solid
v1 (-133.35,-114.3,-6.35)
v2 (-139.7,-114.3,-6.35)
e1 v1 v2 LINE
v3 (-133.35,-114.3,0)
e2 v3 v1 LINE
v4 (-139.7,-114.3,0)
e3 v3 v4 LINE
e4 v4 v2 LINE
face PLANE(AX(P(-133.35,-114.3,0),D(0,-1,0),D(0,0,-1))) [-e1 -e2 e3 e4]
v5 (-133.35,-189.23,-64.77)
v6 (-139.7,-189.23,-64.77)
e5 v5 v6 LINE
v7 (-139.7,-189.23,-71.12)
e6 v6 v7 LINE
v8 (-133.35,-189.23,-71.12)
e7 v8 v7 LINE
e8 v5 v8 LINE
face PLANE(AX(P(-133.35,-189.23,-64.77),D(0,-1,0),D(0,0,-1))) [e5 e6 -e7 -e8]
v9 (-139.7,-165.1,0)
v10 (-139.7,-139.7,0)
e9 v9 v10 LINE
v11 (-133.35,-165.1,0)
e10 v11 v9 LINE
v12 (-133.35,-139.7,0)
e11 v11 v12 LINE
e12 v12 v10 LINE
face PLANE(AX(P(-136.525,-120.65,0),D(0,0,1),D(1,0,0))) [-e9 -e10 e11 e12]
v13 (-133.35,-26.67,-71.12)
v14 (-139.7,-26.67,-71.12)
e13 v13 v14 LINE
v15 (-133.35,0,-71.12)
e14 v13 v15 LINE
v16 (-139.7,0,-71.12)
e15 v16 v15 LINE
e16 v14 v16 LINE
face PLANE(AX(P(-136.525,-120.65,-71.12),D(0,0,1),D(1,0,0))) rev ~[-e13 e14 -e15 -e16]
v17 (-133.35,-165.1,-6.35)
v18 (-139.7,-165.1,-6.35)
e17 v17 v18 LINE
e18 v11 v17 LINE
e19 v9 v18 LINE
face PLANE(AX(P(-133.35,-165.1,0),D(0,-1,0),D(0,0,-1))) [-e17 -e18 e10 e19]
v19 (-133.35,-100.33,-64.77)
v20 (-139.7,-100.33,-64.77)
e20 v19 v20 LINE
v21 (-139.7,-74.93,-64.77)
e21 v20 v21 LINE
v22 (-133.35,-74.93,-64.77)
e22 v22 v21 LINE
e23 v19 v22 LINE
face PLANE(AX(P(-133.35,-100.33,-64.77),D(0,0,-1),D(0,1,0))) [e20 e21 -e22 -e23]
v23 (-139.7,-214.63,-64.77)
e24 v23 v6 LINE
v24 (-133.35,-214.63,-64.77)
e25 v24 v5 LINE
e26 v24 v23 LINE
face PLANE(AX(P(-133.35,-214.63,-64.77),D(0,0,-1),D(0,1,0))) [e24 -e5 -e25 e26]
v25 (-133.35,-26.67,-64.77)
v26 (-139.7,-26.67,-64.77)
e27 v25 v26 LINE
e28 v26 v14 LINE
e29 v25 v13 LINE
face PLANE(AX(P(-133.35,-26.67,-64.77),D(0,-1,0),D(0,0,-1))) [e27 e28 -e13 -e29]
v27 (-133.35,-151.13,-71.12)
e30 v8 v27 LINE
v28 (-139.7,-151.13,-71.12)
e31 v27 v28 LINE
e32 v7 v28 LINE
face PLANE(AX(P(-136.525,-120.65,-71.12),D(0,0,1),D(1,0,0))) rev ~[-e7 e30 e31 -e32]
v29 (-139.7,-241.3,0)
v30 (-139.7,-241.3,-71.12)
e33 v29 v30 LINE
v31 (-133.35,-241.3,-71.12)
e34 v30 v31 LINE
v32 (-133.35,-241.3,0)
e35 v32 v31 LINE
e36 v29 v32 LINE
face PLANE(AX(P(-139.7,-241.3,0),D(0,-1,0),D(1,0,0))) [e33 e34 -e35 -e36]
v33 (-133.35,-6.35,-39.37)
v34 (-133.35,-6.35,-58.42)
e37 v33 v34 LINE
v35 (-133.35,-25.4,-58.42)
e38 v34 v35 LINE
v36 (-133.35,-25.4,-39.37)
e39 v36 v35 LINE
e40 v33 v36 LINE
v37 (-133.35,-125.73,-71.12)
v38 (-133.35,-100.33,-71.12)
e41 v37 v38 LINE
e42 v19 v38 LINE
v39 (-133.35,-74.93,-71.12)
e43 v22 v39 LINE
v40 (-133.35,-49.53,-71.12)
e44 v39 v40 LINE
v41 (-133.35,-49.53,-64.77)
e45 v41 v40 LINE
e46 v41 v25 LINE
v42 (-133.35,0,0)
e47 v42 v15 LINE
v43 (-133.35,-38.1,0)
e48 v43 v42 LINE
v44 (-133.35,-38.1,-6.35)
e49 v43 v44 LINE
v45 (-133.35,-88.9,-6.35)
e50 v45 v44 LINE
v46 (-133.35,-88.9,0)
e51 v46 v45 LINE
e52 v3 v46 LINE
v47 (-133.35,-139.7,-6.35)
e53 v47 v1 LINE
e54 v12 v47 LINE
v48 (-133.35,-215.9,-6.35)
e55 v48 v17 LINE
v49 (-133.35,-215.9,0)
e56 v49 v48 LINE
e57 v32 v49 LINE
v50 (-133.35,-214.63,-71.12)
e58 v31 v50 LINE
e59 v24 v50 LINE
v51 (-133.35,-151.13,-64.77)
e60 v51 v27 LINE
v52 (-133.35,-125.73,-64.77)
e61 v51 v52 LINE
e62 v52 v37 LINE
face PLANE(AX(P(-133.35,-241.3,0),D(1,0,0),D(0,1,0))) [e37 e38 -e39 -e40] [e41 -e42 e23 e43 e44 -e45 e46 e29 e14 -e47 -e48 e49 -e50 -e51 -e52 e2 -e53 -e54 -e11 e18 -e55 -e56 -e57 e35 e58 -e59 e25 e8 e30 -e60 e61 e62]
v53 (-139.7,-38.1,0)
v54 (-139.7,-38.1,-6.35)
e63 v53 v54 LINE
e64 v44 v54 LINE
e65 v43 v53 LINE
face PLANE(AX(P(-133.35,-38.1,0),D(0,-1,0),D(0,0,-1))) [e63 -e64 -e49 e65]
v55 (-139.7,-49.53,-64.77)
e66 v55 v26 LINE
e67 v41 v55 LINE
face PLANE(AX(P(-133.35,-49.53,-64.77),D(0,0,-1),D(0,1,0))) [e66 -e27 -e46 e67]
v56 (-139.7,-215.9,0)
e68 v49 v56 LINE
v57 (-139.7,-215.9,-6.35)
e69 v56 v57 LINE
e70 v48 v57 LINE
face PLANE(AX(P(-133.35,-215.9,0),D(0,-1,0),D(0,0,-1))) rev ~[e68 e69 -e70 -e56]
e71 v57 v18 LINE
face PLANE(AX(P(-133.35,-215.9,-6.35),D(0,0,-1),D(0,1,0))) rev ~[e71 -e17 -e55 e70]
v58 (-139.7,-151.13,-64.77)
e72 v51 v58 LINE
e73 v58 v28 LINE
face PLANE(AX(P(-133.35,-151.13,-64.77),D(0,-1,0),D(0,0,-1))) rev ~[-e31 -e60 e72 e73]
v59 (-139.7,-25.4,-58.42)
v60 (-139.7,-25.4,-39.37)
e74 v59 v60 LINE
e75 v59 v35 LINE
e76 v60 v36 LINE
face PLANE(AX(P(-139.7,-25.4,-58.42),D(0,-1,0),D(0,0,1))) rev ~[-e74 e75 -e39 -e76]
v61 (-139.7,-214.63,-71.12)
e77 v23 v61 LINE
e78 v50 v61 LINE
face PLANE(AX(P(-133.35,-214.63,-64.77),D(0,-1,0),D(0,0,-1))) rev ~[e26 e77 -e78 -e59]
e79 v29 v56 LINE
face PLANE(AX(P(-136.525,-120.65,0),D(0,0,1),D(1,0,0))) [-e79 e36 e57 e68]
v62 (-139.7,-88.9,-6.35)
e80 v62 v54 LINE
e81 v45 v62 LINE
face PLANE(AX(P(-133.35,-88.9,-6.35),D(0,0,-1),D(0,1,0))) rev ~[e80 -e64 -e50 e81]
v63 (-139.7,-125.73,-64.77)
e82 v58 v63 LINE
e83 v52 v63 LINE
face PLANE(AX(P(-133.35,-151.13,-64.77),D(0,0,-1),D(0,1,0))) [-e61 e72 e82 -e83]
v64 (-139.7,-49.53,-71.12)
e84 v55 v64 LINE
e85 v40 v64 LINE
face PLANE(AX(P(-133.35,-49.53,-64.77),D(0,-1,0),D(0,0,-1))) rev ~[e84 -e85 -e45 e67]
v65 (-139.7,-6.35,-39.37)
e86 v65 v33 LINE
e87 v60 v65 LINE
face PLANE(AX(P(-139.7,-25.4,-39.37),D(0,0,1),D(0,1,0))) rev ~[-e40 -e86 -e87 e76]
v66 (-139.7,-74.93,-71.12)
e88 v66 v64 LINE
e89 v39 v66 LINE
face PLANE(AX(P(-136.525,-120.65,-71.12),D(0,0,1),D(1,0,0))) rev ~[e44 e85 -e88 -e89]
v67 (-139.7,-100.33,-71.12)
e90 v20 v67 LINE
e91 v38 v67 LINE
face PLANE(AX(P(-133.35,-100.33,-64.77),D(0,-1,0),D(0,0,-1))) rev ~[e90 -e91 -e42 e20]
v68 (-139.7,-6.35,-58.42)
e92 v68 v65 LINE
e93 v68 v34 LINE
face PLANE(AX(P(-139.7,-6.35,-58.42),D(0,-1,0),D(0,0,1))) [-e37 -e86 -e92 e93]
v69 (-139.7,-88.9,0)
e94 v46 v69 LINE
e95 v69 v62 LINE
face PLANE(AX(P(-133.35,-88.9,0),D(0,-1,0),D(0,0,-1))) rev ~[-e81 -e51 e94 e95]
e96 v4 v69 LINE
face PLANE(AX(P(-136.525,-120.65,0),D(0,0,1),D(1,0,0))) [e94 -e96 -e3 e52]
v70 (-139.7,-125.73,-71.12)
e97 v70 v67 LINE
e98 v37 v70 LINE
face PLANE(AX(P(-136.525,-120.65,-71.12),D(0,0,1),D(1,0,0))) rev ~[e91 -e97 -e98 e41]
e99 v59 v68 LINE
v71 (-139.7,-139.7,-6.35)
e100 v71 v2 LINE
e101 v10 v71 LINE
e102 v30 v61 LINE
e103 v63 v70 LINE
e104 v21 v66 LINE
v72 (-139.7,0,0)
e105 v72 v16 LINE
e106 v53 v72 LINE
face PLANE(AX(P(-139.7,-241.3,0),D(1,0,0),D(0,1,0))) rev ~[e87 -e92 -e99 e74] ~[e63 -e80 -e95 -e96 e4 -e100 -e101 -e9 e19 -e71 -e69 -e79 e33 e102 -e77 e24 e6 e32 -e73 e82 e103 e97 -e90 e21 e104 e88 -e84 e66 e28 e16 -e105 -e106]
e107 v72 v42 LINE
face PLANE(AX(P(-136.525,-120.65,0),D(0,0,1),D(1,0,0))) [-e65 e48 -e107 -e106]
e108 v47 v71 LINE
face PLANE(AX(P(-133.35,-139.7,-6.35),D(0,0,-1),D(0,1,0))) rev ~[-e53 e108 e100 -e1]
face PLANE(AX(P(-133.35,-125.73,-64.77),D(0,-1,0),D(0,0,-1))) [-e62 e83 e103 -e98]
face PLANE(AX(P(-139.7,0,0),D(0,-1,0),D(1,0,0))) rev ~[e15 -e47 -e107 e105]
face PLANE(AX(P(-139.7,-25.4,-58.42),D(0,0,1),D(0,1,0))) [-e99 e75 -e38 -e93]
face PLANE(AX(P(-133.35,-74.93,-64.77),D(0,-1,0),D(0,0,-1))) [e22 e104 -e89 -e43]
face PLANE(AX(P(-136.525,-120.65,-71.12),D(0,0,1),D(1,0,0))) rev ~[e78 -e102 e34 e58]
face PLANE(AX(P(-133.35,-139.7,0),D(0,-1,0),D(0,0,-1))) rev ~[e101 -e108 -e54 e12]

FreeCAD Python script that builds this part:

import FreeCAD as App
import Part
import Sketcher

V = App.Vector
Q = App.Units.Quantity


def add_polygon(sketch, points):
    """Adds a closed chain of lines whose ends are joined by coincident constraints."""
    first, n = sketch.GeometryCount, len(points)
    for a, b in zip(points, points[1:] + points[:1]):
        sketch.addGeometry(Part.LineSegment(App.Vector(*a, 0), App.Vector(*b, 0)), False)
    for i in range(n):
        sketch.addConstraint(Sketcher.Constraint("Coincident", first + i, 2, first + (i + 1) % n, 1))

doc = App.newDocument("Part")
body = doc.addObject("PartDesign::Body", "Body")

# Sketch on XY plane
sketch1 = doc.addObject("Sketcher::SketchObject", "Sketch")
body.addObject(sketch1)
sketch1.AttachmentSupport = (doc.XY_Plane, [""])
sketch1.MapMode = "FlatFace"
add_polygon(sketch1, [(-140, 0), (-140, -241), (-133, -241), (-133, 0)])  # lines 0-3
sketch1.addConstraint(Sketcher.Constraint("Vertical", 0))
sketch1.addConstraint(Sketcher.Constraint("Horizontal", 1))
sketch1.addConstraint(Sketcher.Constraint("Vertical", 2))
sketch1.addConstraint(Sketcher.Constraint("Horizontal", 3))
sketch1.addConstraint(Sketcher.Constraint("PointOnObject", 2, 2, -1))
sketch1.addConstraint(Sketcher.Constraint("DistanceY", 0, 2, 0, 1, Q("9.5 in")))
sketch1.addConstraint(Sketcher.Constraint("DistanceX", 1, 1, 1, 2, Q("0.25 in")))
sketch1.addConstraint(Sketcher.Constraint("DistanceX", 0, 2, -1, 1, Q("5.5 in")))
pad1 = doc.addObject("PartDesign::Pad", "Pad")
body.addObject(pad1)
pad1.Profile = sketch1
pad1.Length = Q("2.8 in")
pad1.Reversed = True

# Sketch on YZ plane
sketch2 = doc.addObject("Sketcher::SketchObject", "Sketch001")
body.addObject(sketch2)
sketch2.AttachmentSupport = (doc.YZ_Plane, [""])
sketch2.MapMode = "FlatFace"
sketch2.AttachmentOffset = App.Placement(V(0, 0, -5.25 * 25.4), App.Rotation())
add_polygon(sketch2, [(-27, -65), (-50, -65), (-50, -71), (-27, -71)])  # lines 0-3
add_polygon(sketch2, [(-75, -65), (-100, -65), (-100, -71), (-75, -71)])  # lines 4-7
add_polygon(sketch2, [(-126, -65), (-151, -65), (-151, -71), (-126, -71)])  # lines 8-11
add_polygon(sketch2, [(-189, -65), (-215, -65), (-215, -71), (-189, -71)])  # lines 12-15
sketch2.addConstraint(Sketcher.Constraint("Horizontal", 0))
sketch2.addConstraint(Sketcher.Constraint("Vertical", 1))
sketch2.addConstraint(Sketcher.Constraint("Horizontal", 2))
sketch2.addConstraint(Sketcher.Constraint("Vertical", 3))
sketch2.addConstraint(Sketcher.Constraint("Horizontal", 4))
sketch2.addConstraint(Sketcher.Constraint("Vertical", 5))
sketch2.addConstraint(Sketcher.Constraint("Horizontal", 6))
sketch2.addConstraint(Sketcher.Constraint("Vertical", 7))
sketch2.addConstraint(Sketcher.Constraint("Horizontal", 8))
sketch2.addConstraint(Sketcher.Constraint("Vertical", 9))
sketch2.addConstraint(Sketcher.Constraint("Horizontal", 10))
sketch2.addConstraint(Sketcher.Constraint("Vertical", 11))
sketch2.addConstraint(Sketcher.Constraint("Horizontal", 12))
sketch2.addConstraint(Sketcher.Constraint("Vertical", 13))
sketch2.addConstraint(Sketcher.Constraint("Horizontal", 14))
sketch2.addConstraint(Sketcher.Constraint("Vertical", 15))
sketch2.addConstraint(Sketcher.Constraint("Horizontal", 3, 2, 4, 2))
sketch2.addConstraint(Sketcher.Constraint("Horizontal", 2, 2, 5, 2))
sketch2.addConstraint(Sketcher.Constraint("Horizontal", 7, 2, 8, 2))
sketch2.addConstraint(Sketcher.Constraint("Horizontal", 6, 2, 9, 2))
sketch2.addConstraint(Sketcher.Constraint("Horizontal", 11, 2, 12, 2))
sketch2.addConstraint(Sketcher.Constraint("Horizontal", 10, 2, 13, 2))
sketch2.addConstraint(Sketcher.Constraint("Equal", 6, 8))
sketch2.addConstraint(Sketcher.Constraint("Equal", 10, 12))
sketch2.addConstraint(Sketcher.Constraint("DistanceX", 4, 2, 4, 1, Q("1 in")))
sketch2.addConstraint(Sketcher.Constraint("DistanceX", 0, 2, 0, 1, Q("0.9 in")))
sketch2.addConstraint(Sketcher.Constraint("DistanceX", 4, 2, 0, 2, Q("2 in")))
sketch2.addConstraint(Sketcher.Constraint("DistanceX", 8, 2, 4, 2, Q("2 in")))
sketch2.addConstraint(Sketcher.Constraint("DistanceY", 1, 2, 1, 1, Q("0.25 in")))
sketch2.addConstraint(Sketcher.Constraint("DistanceY", 1, 2, -1, 1, Q("2.8 in")))
sketch2.addConstraint(Sketcher.Constraint("DistanceX", 12, 2, 8, 2, Q("2.5 in")))
sketch2.addConstraint(Sketcher.Constraint("DistanceX", 0, 2, -1, 1, Q("1.95 in")))
pocket1 = doc.addObject("PartDesign::Pocket", "Pocket")
body.addObject(pocket1)
pocket1.Profile = sketch2
pocket1.Length = Q("0.25 in")

# Sketch on YZ plane
sketch3 = doc.addObject("Sketcher::SketchObject", "Sketch002")
body.addObject(sketch3)
sketch3.AttachmentSupport = (doc.YZ_Plane, [""])
sketch3.MapMode = "FlatFace"
sketch3.AttachmentOffset = App.Placement(V(0, 0, -5.25 * 25.4), App.Rotation())
add_polygon(sketch3, [(-165, 0), (-216, 0), (-216, -6), (-165, -6)])  # lines 0-3
add_polygon(sketch3, [(-114, 0), (-140, 0), (-140, -6), (-114, -6)])  # lines 4-7
add_polygon(sketch3, [(-38, 0), (-89, 0), (-89, -6), (-38, -6)])  # lines 8-11
sketch3.addConstraint(Sketcher.Constraint("Horizontal", 0))
sketch3.addConstraint(Sketcher.Constraint("Vertical", 1))
sketch3.addConstraint(Sketcher.Constraint("Horizontal", 2))
sketch3.addConstraint(Sketcher.Constraint("Vertical", 3))
sketch3.addConstraint(Sketcher.Constraint("Horizontal", 4))
sketch3.addConstraint(Sketcher.Constraint("Vertical", 5))
sketch3.addConstraint(Sketcher.Constraint("Horizontal", 6))
sketch3.addConstraint(Sketcher.Constraint("Vertical", 7))
sketch3.addConstraint(Sketcher.Constraint("Horizontal", 8))
sketch3.addConstraint(Sketcher.Constraint("Vertical", 9))
sketch3.addConstraint(Sketcher.Constraint("Horizontal", 10))
sketch3.addConstraint(Sketcher.Constraint("Vertical", 11))
sketch3.addConstraint(Sketcher.Constraint("PointOnObject", 0, 2, -1))
sketch3.addConstraint(Sketcher.Constraint("PointOnObject", 4, 2, -1))
sketch3.addConstraint(Sketcher.Constraint("PointOnObject", 8, 2, -1))
sketch3.addConstraint(Sketcher.Constraint("Horizontal", 2, 2, 5, 2))
sketch3.addConstraint(Sketcher.Constraint("Horizontal", 6, 2, 9, 2))
sketch3.addConstraint(Sketcher.Constraint("Equal", 2, 8))
sketch3.addConstraint(Sketcher.Constraint("DistanceX", 0, 2, 0, 1, Q("2 in")))
sketch3.addConstraint(Sketcher.Constraint("DistanceX", 4, 2, 4, 1, Q("1 in")))
sketch3.addConstraint(Sketcher.Constraint("DistanceX", 3, 2, 4, 2, Q("1 in")))
sketch3.addConstraint(Sketcher.Constraint("DistanceX", 7, 2, 8, 2, Q("1 in")))
sketch3.addConstraint(Sketcher.Constraint("DistanceY", 1, 2, 1, 1, Q("0.25 in")))
sketch3.addConstraint(Sketcher.Constraint("DistanceX", 0, 2, -1, 1, Q("8.5 in")))
pocket2 = doc.addObject("PartDesign::Pocket", "Pocket001")
body.addObject(pocket2)
pocket2.Profile = sketch3
pocket2.Length = Q("0.25 in")

# Sketch on YZ plane
sketch4 = doc.addObject("Sketcher::SketchObject", "Sketch003")
body.addObject(sketch4)
sketch4.AttachmentSupport = (doc.YZ_Plane, [""])
sketch4.MapMode = "FlatFace"
sketch4.AttachmentOffset = App.Placement(V(0, 0, -5.5 * 25.4), App.Rotation())
add_polygon(sketch4, [(-6, -58), (-25, -58), (-25, -39), (-6, -39)])  # lines 0-3
sketch4.addConstraint(Sketcher.Constraint("Horizontal", 0))
sketch4.addConstraint(Sketcher.Constraint("Vertical", 1))
sketch4.addConstraint(Sketcher.Constraint("Horizontal", 2))
sketch4.addConstraint(Sketcher.Constraint("Vertical", 3))
sketch4.addConstraint(Sketcher.Constraint("Equal", 2, 1))
sketch4.addConstraint(Sketcher.Constraint("DistanceX", 0, 2, -1, 1, Q("1 in")))
sketch4.addConstraint(Sketcher.Constraint("DistanceX", 0, 2, 0, 1, Q("0.75 in")))
sketch4.addConstraint(Sketcher.Constraint("DistanceY", 0, 2, -1, 1, Q("2.3 in")))
pocket3 = doc.addObject("PartDesign::Pocket", "Pocket002")
body.addObject(pocket3)
pocket3.Profile = sketch4
pocket3.Type = "ThroughAll"
pocket3.Reversed = True

doc.recompute()
